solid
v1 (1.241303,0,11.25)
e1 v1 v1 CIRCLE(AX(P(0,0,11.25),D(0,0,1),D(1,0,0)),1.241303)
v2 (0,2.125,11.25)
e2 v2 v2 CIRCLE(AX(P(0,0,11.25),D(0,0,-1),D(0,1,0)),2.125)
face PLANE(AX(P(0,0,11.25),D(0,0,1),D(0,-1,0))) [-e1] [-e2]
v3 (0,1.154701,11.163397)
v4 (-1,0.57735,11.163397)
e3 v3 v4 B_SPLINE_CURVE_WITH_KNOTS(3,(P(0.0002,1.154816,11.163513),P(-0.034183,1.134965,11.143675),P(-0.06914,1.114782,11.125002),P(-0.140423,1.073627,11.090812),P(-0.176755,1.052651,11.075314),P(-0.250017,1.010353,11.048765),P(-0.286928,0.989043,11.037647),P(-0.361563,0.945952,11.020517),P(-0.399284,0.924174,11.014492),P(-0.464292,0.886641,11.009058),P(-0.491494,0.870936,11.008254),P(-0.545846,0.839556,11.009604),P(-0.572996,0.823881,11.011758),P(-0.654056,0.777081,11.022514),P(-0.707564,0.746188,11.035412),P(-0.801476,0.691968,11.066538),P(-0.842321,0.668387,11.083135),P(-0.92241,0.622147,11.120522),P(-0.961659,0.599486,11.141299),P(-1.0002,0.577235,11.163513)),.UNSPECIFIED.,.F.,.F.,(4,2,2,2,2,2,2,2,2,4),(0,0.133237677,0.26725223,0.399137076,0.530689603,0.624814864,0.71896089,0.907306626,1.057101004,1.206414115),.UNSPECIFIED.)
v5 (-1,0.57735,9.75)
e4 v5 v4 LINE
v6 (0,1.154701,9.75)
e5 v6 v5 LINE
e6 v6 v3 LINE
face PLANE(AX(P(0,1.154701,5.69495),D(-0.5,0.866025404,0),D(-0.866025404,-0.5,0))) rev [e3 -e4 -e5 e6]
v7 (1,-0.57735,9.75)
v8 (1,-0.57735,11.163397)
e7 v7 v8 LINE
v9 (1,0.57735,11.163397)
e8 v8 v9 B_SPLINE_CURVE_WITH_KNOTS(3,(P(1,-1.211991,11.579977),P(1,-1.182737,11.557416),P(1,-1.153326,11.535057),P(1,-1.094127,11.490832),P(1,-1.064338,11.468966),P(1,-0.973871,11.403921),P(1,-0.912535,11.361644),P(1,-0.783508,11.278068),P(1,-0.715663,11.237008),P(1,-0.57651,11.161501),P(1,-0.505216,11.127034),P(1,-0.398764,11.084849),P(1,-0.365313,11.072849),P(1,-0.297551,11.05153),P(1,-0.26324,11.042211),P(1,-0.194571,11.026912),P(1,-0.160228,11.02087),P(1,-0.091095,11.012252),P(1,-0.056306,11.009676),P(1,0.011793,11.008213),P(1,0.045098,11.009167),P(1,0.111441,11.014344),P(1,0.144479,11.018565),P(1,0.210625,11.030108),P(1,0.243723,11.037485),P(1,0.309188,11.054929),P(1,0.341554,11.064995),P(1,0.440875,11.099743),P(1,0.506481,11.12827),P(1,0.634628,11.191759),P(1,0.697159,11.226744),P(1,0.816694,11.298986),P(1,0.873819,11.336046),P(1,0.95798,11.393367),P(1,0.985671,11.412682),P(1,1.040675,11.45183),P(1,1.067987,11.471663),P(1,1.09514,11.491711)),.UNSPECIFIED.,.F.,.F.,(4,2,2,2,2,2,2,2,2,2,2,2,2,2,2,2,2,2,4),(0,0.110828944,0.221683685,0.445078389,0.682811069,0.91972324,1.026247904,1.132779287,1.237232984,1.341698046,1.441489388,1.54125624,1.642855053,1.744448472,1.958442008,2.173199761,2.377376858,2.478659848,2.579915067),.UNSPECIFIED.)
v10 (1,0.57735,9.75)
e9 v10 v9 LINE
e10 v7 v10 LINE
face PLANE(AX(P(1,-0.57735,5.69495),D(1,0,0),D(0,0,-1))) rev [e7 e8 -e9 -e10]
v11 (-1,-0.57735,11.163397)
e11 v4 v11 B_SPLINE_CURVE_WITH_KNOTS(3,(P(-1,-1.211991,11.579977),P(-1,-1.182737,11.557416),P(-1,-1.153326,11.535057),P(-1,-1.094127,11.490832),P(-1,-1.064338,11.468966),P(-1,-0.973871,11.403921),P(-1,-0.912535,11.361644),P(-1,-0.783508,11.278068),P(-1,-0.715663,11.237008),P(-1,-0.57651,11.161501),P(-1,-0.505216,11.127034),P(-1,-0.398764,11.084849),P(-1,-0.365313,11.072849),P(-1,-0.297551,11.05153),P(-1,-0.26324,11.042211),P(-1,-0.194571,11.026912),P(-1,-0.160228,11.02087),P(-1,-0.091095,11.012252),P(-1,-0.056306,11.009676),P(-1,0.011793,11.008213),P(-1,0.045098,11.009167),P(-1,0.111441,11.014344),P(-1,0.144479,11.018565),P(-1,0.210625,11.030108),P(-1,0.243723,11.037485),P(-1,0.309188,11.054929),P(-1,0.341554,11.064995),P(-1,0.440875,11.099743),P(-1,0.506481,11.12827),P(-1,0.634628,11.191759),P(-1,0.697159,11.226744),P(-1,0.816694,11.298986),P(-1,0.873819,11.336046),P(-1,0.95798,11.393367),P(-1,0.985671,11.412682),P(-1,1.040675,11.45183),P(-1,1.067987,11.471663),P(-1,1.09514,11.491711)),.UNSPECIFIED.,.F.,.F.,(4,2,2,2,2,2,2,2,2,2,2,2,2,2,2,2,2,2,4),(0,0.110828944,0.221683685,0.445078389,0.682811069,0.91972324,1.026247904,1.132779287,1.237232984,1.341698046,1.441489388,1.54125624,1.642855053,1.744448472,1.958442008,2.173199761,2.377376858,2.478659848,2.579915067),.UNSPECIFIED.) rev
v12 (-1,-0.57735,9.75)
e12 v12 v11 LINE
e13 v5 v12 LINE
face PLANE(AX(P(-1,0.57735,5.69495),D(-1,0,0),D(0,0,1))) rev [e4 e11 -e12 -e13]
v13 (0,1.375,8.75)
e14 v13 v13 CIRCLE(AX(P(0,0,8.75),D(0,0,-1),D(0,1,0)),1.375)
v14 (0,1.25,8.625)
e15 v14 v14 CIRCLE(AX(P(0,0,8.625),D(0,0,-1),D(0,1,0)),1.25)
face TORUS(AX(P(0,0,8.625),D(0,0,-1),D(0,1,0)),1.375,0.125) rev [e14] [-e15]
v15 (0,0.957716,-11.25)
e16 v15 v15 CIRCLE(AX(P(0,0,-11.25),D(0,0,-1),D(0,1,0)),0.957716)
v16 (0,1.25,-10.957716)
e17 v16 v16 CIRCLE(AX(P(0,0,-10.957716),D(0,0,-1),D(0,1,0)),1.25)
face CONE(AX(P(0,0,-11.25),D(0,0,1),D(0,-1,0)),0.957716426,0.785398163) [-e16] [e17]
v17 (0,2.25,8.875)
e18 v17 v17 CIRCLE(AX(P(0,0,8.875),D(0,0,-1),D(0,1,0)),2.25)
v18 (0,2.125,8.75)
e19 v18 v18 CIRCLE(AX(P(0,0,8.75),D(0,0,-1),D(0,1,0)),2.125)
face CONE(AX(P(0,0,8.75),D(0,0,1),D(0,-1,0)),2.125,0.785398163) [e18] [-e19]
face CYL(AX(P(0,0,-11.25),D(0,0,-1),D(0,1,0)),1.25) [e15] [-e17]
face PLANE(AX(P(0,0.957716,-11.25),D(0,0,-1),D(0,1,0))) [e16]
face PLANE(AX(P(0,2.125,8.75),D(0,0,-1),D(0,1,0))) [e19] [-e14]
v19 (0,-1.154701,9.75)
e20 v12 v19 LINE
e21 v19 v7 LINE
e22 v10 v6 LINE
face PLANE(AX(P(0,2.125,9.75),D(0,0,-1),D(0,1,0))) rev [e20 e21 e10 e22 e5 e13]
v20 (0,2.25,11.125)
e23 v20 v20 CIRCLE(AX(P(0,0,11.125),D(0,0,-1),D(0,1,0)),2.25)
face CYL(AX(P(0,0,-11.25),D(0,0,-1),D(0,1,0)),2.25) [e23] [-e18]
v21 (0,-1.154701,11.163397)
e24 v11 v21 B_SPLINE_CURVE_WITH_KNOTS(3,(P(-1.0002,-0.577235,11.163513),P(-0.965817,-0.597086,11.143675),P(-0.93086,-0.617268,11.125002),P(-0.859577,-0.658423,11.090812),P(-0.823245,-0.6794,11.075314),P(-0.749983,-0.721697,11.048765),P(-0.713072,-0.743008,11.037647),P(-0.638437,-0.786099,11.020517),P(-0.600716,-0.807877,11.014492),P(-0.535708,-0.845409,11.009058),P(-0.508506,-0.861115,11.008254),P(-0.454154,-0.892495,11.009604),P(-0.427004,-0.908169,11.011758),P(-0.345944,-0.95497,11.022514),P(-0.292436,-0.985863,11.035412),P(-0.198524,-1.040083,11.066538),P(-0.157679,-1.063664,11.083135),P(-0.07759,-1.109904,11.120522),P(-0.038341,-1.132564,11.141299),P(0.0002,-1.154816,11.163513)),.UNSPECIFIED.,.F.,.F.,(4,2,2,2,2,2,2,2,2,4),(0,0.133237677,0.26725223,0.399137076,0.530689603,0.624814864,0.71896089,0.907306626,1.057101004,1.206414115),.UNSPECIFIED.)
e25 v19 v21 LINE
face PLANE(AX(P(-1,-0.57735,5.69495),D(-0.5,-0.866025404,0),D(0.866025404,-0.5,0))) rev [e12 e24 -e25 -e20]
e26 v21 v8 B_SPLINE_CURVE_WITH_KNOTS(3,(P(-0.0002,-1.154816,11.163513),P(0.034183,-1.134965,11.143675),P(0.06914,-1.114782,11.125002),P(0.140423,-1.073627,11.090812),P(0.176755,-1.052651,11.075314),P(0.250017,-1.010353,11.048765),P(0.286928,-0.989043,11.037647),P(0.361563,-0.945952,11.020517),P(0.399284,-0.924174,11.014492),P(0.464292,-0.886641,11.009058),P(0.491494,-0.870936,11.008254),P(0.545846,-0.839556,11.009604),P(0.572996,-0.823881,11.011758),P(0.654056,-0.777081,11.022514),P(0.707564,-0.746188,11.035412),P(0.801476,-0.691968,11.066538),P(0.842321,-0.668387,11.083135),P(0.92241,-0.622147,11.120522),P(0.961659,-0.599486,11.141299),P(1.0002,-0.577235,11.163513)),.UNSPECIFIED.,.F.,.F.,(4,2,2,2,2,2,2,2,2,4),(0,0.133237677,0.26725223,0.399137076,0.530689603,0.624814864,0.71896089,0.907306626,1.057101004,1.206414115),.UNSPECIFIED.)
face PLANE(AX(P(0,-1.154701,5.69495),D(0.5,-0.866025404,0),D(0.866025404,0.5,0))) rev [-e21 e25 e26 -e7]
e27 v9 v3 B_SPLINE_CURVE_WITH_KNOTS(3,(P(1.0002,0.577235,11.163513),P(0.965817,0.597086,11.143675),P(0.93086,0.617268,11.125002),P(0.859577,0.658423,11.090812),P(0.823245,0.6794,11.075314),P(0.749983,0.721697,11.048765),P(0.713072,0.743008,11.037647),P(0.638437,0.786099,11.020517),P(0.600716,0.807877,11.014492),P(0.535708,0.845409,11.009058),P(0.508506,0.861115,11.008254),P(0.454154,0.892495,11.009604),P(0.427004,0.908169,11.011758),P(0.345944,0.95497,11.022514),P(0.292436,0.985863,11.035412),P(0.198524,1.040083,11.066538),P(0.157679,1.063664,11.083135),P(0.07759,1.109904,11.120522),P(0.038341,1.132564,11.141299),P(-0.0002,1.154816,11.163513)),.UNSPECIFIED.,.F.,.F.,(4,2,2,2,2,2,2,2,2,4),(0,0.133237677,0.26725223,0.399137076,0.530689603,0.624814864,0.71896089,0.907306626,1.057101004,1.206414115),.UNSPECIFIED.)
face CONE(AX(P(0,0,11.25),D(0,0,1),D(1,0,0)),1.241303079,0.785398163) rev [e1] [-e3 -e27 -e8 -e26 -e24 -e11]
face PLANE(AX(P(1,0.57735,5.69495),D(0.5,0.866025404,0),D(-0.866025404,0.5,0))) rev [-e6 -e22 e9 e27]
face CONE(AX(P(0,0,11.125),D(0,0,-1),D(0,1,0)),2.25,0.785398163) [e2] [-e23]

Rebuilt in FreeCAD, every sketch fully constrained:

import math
import FreeCAD as App
import Part
import Sketcher

V = App.Vector
Q = App.Units.Quantity


def faces_at(feature, points):
    """Names of the faces that lie closest to the given points."""
    faces = feature.Shape.Faces
    near = lambda p: min(range(len(faces)), key=lambda i: faces[i].distToShape(Part.Vertex(*p))[0])
    return sorted({f"Face{near(p) + 1}" for p in points})

doc = App.newDocument("Part")
body = doc.addObject("PartDesign::Body", "Body")

sketch1 = body.newObject("Sketcher::SketchObject", "Sketch")
sketch1.AttachmentSupport = (doc.getObject("YZ_Plane"), [""])
sketch1.MapMode = "FlatFace"
sketch1.addGeometry([
    Part.LineSegment(V(2.12, 11.25, 0), V(0, 11.25, 0)),
    Part.LineSegment(V(0, 11.25, 0), V(0, -11.25, 0)),
    Part.LineSegment(V(0, -11.25, 0), V(0.96, -11.25, 0)),
    Part.LineSegment(V(0.96, -11.25, 0), V(1.25, -10.96, 0)),
    Part.LineSegment(V(1.25, -10.96, 0), V(1.25, 8.62, 0)),
    Part.ArcOfCircle(Part.Circle(V(1.37, 8.63, 0), V(0, 0, 1), 0.12), math.radians(90), math.radians(180)),
    Part.LineSegment(V(1.38, 8.75, 0), V(2.12, 8.75, 0)),
    Part.LineSegment(V(2.12, 8.75, 0), V(2.25, 8.88, 0)),
    Part.LineSegment(V(2.25, 8.88, 0), V(2.25, 11.12, 0)),
    Part.LineSegment(V(2.25, 11.12, 0), V(2.12, 11.25, 0)),
], False)
sketch1.addConstraint([
    Sketcher.Constraint("Coincident", 0, 2, 1, 1),
    Sketcher.Constraint("Coincident", 1, 2, 2, 1),
    Sketcher.Constraint("Coincident", 2, 2, 3, 1),
    Sketcher.Constraint("Coincident", 3, 2, 4, 1),
    Sketcher.Constraint("Tangent", 4, 2, 5, 2),
    Sketcher.Constraint("Tangent", 5, 1, 6, 1),
    Sketcher.Constraint("Coincident", 6, 2, 7, 1),
    Sketcher.Constraint("Coincident", 7, 2, 8, 1),
    Sketcher.Constraint("Coincident", 8, 2, 9, 1),
    Sketcher.Constraint("Coincident", 9, 2, 0, 1),
    Sketcher.Constraint("Horizontal", 0),
    Sketcher.Constraint("Vertical", 1),
    Sketcher.Constraint("Horizontal", 2),
    Sketcher.Constraint("Vertical", 4),
    Sketcher.Constraint("Horizontal", 6),
    Sketcher.Constraint("Vertical", 8),
    Sketcher.Constraint("Symmetric", 0, 2, 1, 2, -1, 1),
    Sketcher.Constraint("Parallel", 3, 7),
    Sketcher.Constraint("Perpendicular", 7, 9),
    Sketcher.Constraint("Vertical", 6, 2, 9, 2),
    Sketcher.Constraint("Equal", 7, 9),
    Sketcher.Constraint("DistanceY", 1, 2, 1, 1, 22.5),
    Sketcher.Constraint("Radius", 5, 0.125),
    Sketcher.Constraint("DistanceY", 2, 2, 5, 1, 20.0),
    Sketcher.Constraint("DistanceX", 4, 2, 7, 2, 1.0),
    Sketcher.Constraint("DistanceX", 6, 1, 6, 2, 0.75),
    Sketcher.Constraint("DistanceX", 0, 2, 0, 1, 2.125),
    Sketcher.Constraint("Distance", 3, 0.413351),
])
revolution = body.newObject("PartDesign::Revolution", "Revolution")
revolution.Profile = sketch1
revolution.ReferenceAxis = (sketch1, ["V_Axis"])
revolution.Angle = 360

sketch2 = body.newObject("Sketcher::SketchObject", "Sketch001")
sketch2.AttachmentSupport = (doc.getObject("XY_Plane"), [""])
sketch2.MapMode = "FlatFace"
sketch2.AttachmentOffset = App.Placement(V(0, 0, 11.25), App.Rotation())
sketch2.addGeometry([
    Part.LineSegment(V(1, -0.6, 0), V(1, 0.6, 0)),
    Part.LineSegment(V(1, 0.6, 0), V(0, 1.2, 0)),
    Part.LineSegment(V(0, 1.2, 0), V(-1, 0.6, 0)),
    Part.LineSegment(V(-1, 0.6, 0), V(-1, -0.6, 0)),
    Part.LineSegment(V(-1, -0.6, 0), V(0, -1.2, 0)),
    Part.LineSegment(V(0, -1.2, 0), V(1, -0.6, 0)),
], False)
sketch2.addConstraint([
    Sketcher.Constraint("Coincident", 0, 2, 1, 1),
    Sketcher.Constraint("Coincident", 1, 2, 2, 1),
    Sketcher.Constraint("Coincident", 2, 2, 3, 1),
    Sketcher.Constraint("Coincident", 3, 2, 4, 1),
    Sketcher.Constraint("Coincident", 4, 2, 5, 1),
    Sketcher.Constraint("Coincident", 5, 2, 0, 1),
    Sketcher.Constraint("Vertical", 0),
    Sketcher.Constraint("Vertical", 3),
    Sketcher.Constraint("Symmetric", 0, 2, 3, 2, -1, 1),
    Sketcher.Constraint("Symmetric", 1, 2, 4, 2, -1, 1),
    Sketcher.Constraint("PointOnObject", 1, 2, -2),
    Sketcher.Constraint("Parallel", 2, 5),
    Sketcher.Constraint("Horizontal", 0, 2, 2, 2),
    Sketcher.Constraint("Angle", 1, Q("150 deg")),
    Sketcher.Constraint("DistanceX", -1, 1, 0, 2, 1.0),
    Sketcher.Constraint("DistanceY", 0, 1, 0, 2, 1.154701),
])
pocket1 = body.newObject("PartDesign::Pocket", "Pocket")
pocket1.Profile = sketch2
pocket1.Length = 1.5
body2 = doc.addObject("PartDesign::Body", "Body001")

sketch3 = body2.newObject("Sketcher::SketchObject", "Sketch002")
sketch3.AttachmentSupport = (doc.getObject("XY_Plane001"), [""])
sketch3.MapMode = "FlatFace"
sketch3.AttachmentOffset = App.Placement(V(0, 0, 11.25), App.Rotation())
sketch3.addGeometry(Part.Circle(V(0, 0, 0), V(0, 0, 1), 1.2), False)
sketch3.addConstraint([
    Sketcher.Constraint("Coincident", 0, 3, -1, 1),
    Sketcher.Constraint("Diameter", 0, 2.482606),
])
pad1 = body2.newObject("PartDesign::Pad", "Pad")
pad1.Profile = sketch3
pad1.Length = 1.5
pad1.Reversed = True
doc.recompute()

datumplane = body2.newObject("PartDesign::Plane", "DatumPlane")
datumplane.AttachmentSupport = (doc.getObject("XY_Plane001"), [""])
datumplane.MapMode = "FlatFace"
datumplane.AttachmentOffset = App.Placement(V(0, 0, 11.25), App.Rotation())
draft = body2.newObject("PartDesign::Draft", "Draft")
draft.Base = (pad1, faces_at(pad1, [(-1.241, 0, 10.5)]))
draft.NeutralPlane = (datumplane, [""])
draft.Angle = 45
draft.Reversed = True
doc.recompute()

boolean = body.newObject("PartDesign::Boolean", "Boolean")
boolean.Type = "Cut"
boolean.addObjects([body2])

doc.recompute()
